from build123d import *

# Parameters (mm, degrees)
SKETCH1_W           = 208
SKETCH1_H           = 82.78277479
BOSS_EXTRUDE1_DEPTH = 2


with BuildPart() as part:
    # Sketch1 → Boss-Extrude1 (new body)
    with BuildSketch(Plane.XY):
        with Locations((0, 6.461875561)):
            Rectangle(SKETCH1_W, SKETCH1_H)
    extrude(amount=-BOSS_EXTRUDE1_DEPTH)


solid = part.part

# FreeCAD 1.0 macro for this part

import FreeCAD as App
import Part
import Sketcher
from FreeCAD import Vector


def add_polygon(sketch, points):
    """Adds a closed chain of lines whose ends are joined by coincident constraints."""
    first, n = sketch.GeometryCount, len(points)
    for a, b in zip(points, points[1:] + points[:1]):
        sketch.addGeometry(Part.LineSegment(App.Vector(*a, 0), App.Vector(*b, 0)), False)
    for i in range(n):
        sketch.addConstraint(Sketcher.Constraint("Coincident", first + i, 2, first + (i + 1) % n, 1))

doc = App.newDocument("Part")
params = doc.addObject("Spreadsheet::Sheet", "Params")
for row, (alias, value) in enumerate([
    ("sketch1_width", "208 mm"),
    ("pad1_length", "2 mm"),
], start=1):
    params.set(f"A{row}", alias)
    params.set(f"B{row}", "=" + value)
    params.setAlias(f"B{row}", alias)

body = doc.addObject("PartDesign::Body", "Body")

# Sketch on XY plane
sketch1 = body.newObject("Sketcher::SketchObject", "Sketch")
sketch1.AttachmentSupport = (doc.getObject("XY_Plane"), [""])
sketch1.MapMode = "FlatFace"
add_polygon(sketch1, [(-104, 48), (-104, -35), (104, -35), (104, 48)])  # lines 0-3
sketch1.addConstraint([
    Sketcher.Constraint("Vertical", 0),
    Sketcher.Constraint("Horizontal", 1),
    Sketcher.Constraint("Vertical", 2),
    Sketcher.Constraint("Horizontal", 3),
    Sketcher.Constraint("DistanceX", 1, 1, 1, 2, 208.0),
    Sketcher.Constraint("DistanceX", 0, 2, -1, 1, 104.0),
    Sketcher.Constraint("DistanceY", 0, 2, 0, 1, 82.782775),
    Sketcher.Constraint("DistanceY", 0, 2, -1, 1, 34.929512),
])
sketch1.setExpression("Constraints[8]", "Params.sketch1_width")
pad1 = body.newObject("PartDesign::Pad", "Pad")
pad1.Profile = sketch1
pad1.setExpression("Length", "Params.pad1_length")
pad1.Reversed = True

doc.recompute()
